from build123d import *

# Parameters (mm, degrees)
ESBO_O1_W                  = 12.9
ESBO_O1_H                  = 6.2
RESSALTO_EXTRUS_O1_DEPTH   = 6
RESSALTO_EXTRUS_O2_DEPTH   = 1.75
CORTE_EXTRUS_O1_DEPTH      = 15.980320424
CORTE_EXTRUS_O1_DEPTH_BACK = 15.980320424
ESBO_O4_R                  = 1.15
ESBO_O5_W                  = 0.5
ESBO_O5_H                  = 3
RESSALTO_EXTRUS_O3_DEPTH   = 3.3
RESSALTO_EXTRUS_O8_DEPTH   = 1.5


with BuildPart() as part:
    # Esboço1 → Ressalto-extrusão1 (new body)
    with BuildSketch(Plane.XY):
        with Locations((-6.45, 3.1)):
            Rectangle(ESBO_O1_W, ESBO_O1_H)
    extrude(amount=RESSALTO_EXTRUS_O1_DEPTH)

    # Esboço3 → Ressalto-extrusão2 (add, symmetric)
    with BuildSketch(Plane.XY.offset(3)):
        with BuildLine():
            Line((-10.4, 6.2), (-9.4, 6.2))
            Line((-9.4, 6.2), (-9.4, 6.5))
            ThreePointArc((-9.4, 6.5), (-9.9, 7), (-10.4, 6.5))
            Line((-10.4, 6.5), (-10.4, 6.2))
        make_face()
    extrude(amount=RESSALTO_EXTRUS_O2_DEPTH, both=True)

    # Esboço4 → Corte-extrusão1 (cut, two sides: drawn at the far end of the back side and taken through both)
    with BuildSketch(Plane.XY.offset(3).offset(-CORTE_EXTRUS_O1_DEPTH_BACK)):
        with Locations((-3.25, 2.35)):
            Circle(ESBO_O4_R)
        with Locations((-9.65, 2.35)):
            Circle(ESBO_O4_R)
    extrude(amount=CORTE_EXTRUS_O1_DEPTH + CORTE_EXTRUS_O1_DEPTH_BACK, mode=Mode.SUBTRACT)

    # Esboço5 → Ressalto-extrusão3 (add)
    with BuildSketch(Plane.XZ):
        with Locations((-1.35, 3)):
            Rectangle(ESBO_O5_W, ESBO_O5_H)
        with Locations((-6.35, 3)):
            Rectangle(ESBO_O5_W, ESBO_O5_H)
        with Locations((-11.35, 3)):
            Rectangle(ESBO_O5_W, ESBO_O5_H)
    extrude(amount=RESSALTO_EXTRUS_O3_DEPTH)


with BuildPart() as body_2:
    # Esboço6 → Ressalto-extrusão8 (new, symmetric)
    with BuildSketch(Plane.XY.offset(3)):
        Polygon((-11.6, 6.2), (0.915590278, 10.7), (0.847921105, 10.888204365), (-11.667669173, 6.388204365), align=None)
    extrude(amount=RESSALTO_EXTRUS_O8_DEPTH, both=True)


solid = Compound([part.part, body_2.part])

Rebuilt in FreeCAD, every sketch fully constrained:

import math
import FreeCAD as App
import Part
import Sketcher

V = App.Vector
Q = App.Units.Quantity


def add_polygon(sketch, points):
    """Adds a closed chain of lines whose ends are joined by coincident constraints."""
    first, n = sketch.GeometryCount, len(points)
    for a, b in zip(points, points[1:] + points[:1]):
        sketch.addGeometry(Part.LineSegment(App.Vector(*a, 0), App.Vector(*b, 0)), False)
    for i in range(n):
        sketch.addConstraint(Sketcher.Constraint("Coincident", first + i, 2, first + (i + 1) % n, 1))

doc = App.newDocument("Part")
params = doc.addObject("Spreadsheet::Sheet", "Params")
for row, (alias, value) in enumerate([
    ("sketch1_width", "12.9 mm"),
    ("sketch1_height", "6.2 mm"),
    ("pad1_length", "6 mm"),
    ("sketch2_radius", "0.5 mm"),
    ("sketch2_height", "0.3 mm"),
    ("pad2_length", "3.5 mm"),
    ("sketch3_diameter", "2.3 mm"),
    ("sketch4_height", "3 mm"),
    ("sketch4_width", "0.5 mm"),
    ("pad3_length", "3.3 mm"),
    ("sketch5_length", "13.3 mm"),
    ("sketch5_length2", "0.2 mm"),
    ("pad4_length", "3 mm"),
], start=1):
    params.set(f"A{row}", alias)
    params.set(f"B{row}", "=" + value)
    params.setAlias(f"B{row}", alias)

body = doc.addObject("PartDesign::Body", "Body")

sketch1 = body.newObject("Sketcher::SketchObject", "Sketch")
sketch1.AttachmentSupport = (doc.getObject("XY_Plane"), [""])
sketch1.MapMode = "FlatFace"
add_polygon(sketch1, [(-12.9, 6.2), (-12.9, 0), (0, 0), (0, 6.2)])
sketch1.addConstraint(Sketcher.Constraint("Vertical", 0))
sketch1.addConstraint(Sketcher.Constraint("Horizontal", 1))
sketch1.addConstraint(Sketcher.Constraint("Vertical", 2))
sketch1.addConstraint(Sketcher.Constraint("Horizontal", 3))
sketch1.addConstraint(Sketcher.Constraint("Coincident", 1, 2, -1, 1))
sketch1.addConstraint(Sketcher.Constraint("DistanceX", 1, 1, 1, 2, Q("12.9 mm")))
sketch1.addConstraint(Sketcher.Constraint("DistanceY", 0, 2, 0, 1, Q("6.2 mm")))
sketch1.setExpression("Constraints[9]", "Params.sketch1_width")
sketch1.setExpression("Constraints[10]", "Params.sketch1_height")
pad1 = body.newObject("PartDesign::Pad", "Pad")
pad1.Profile = sketch1
pad1.setExpression("Length", "Params.pad1_length")

sketch2 = body.newObject("Sketcher::SketchObject", "Sketch001")
sketch2.AttachmentSupport = (doc.getObject("XY_Plane"), [""])
sketch2.MapMode = "FlatFace"
sketch2.AttachmentOffset = App.Placement(V(0, 0, 3), App.Rotation())
sketch2.addGeometry(Part.LineSegment(V(-10.4, 6.2, 0), V(-9.4, 6.2, 0)), False)
sketch2.addGeometry(Part.LineSegment(V(-9.4, 6.2, 0), V(-9.4, 6.5, 0)), False)
sketch2.addGeometry(Part.ArcOfCircle(Part.Circle(V(-9.9, 6.5, 0), V(0, 0, 1), 0.5), math.radians(0), math.radians(180)), False)
sketch2.addGeometry(Part.LineSegment(V(-10.4, 6.5, 0), V(-10.4, 6.2, 0)), False)
sketch2.addConstraint(Sketcher.Constraint("Coincident", 0, 2, 1, 1))
sketch2.addConstraint(Sketcher.Constraint("Tangent", 1, 2, 2, 1))
sketch2.addConstraint(Sketcher.Constraint("Tangent", 2, 2, 3, 1))
sketch2.addConstraint(Sketcher.Constraint("Coincident", 3, 2, 0, 1))
sketch2.addConstraint(Sketcher.Constraint("Horizontal", 0))
sketch2.addConstraint(Sketcher.Constraint("Vertical", 1))
sketch2.addConstraint(Sketcher.Constraint("Vertical", 3))
sketch2.addConstraint(Sketcher.Constraint("Radius", 2, Q("0.5 mm")))
sketch2.addConstraint(Sketcher.Constraint("DistanceY", 1, 1, 1, 2, Q("0.3 mm")))
sketch2.addConstraint(Sketcher.Constraint("DistanceX", 2, 3, -1, 1, Q("9.9 mm")))
sketch2.addConstraint(Sketcher.Constraint("DistanceY", -1, 1, 2, 3, Q("6.5 mm")))
sketch2.setExpression("Constraints[7]", "Params.sketch2_radius")
sketch2.setExpression("Constraints[8]", "Params.sketch2_height")
pad2 = body.newObject("PartDesign::Pad", "Pad001")
pad2.Profile = sketch2
pad2.setExpression("Length", "Params.pad2_length")
pad2.Midplane = True

sketch3 = body.newObject("Sketcher::SketchObject", "Sketch002")
sketch3.AttachmentSupport = (doc.getObject("XY_Plane"), [""])
sketch3.MapMode = "FlatFace"
sketch3.AttachmentOffset = App.Placement(V(0, 0, 3), App.Rotation())
sketch3.addGeometry(Part.Circle(V(-3.25, 2.35, 0), V(0, 0, 1), 1.15), False)
sketch3.addGeometry(Part.Circle(V(-9.65, 2.35, 0), V(0, 0, 1), 1.15), False)
sketch3.addConstraint(Sketcher.Constraint("Equal", 0, 1))
sketch3.addConstraint(Sketcher.Constraint("Horizontal", 0, 3, 1, 3))
sketch3.addConstraint(Sketcher.Constraint("Diameter", 0, Q("2.3 mm")))
sketch3.addConstraint(Sketcher.Constraint("DistanceX", 1, 3, 0, 3, Q("6.4 mm")))
sketch3.addConstraint(Sketcher.Constraint("DistanceX", 0, 3, -1, 1, Q("3.25 mm")))
sketch3.addConstraint(Sketcher.Constraint("DistanceY", -1, 1, 0, 3, Q("2.35 mm")))
sketch3.setExpression("Constraints[2]", "Params.sketch3_diameter")
pocket1 = body.newObject("PartDesign::Pocket", "Pocket")
pocket1.Profile = sketch3
pocket1.Type = "ThroughAll"
pocket1.Midplane = True

sketch4 = body.newObject("Sketcher::SketchObject", "Sketch003")
sketch4.AttachmentSupport = (doc.getObject("XZ_Plane"), [""])
sketch4.MapMode = "FlatFace"
add_polygon(sketch4, [(-1.6, 4.5), (-1.6, 1.5), (-1.1, 1.5), (-1.1, 4.5)])
add_polygon(sketch4, [(-6.6, 4.5), (-6.6, 1.5), (-6.1, 1.5), (-6.1, 4.5)])
add_polygon(sketch4, [(-11.6, 4.5), (-11.6, 1.5), (-11.1, 1.5), (-11.1, 4.5)])
sketch4.addConstraint(Sketcher.Constraint("Vertical", 0))
sketch4.addConstraint(Sketcher.Constraint("Horizontal", 1))
sketch4.addConstraint(Sketcher.Constraint("Vertical", 2))
sketch4.addConstraint(Sketcher.Constraint("Horizontal", 3))
sketch4.addConstraint(Sketcher.Constraint("Vertical", 4))
sketch4.addConstraint(Sketcher.Constraint("Horizontal", 5))
sketch4.addConstraint(Sketcher.Constraint("Vertical", 6))
sketch4.addConstraint(Sketcher.Constraint("Horizontal", 7))
sketch4.addConstraint(Sketcher.Constraint("Vertical", 8))
sketch4.addConstraint(Sketcher.Constraint("Horizontal", 9))
sketch4.addConstraint(Sketcher.Constraint("Vertical", 10))
sketch4.addConstraint(Sketcher.Constraint("Horizontal", 11))
sketch4.addConstraint(Sketcher.Constraint("Horizontal", 1, 2, 4, 2))
sketch4.addConstraint(Sketcher.Constraint("Horizontal", 3, 2, 6, 2))
sketch4.addConstraint(Sketcher.Constraint("Horizontal", 5, 2, 8, 2))
sketch4.addConstraint(Sketcher.Constraint("Horizontal", 7, 2, 10, 2))
sketch4.addConstraint(Sketcher.Constraint("Equal", 3, 5))
sketch4.addConstraint(Sketcher.Constraint("Equal", 7, 9))
sketch4.addConstraint(Sketcher.Constraint("DistanceY", 0, 2, 0, 1, Q("3 mm")))
sketch4.addConstraint(Sketcher.Constraint("DistanceX", 1, 1, 1, 2, Q("0.5 mm")))
sketch4.addConstraint(Sketcher.Constraint("DistanceX", 4, 2, 0, 2, Q("5 mm")))
sketch4.addConstraint(Sketcher.Constraint("DistanceX", 8, 2, 4, 2, Q("5 mm")))
sketch4.addConstraint(Sketcher.Constraint("DistanceX", 0, 2, -1, 1, Q("1.6 mm")))
sketch4.addConstraint(Sketcher.Constraint("DistanceY", -1, 1, 0, 2, Q("1.5 mm")))
sketch4.setExpression("Constraints[30]", "Params.sketch4_height")
sketch4.setExpression("Constraints[31]", "Params.sketch4_width")
pad3 = body.newObject("PartDesign::Pad", "Pad002")
pad3.Profile = sketch4
pad3.setExpression("Length", "Params.pad3_length")
body2 = doc.addObject("PartDesign::Body", "Body001")

sketch5 = body2.newObject("Sketcher::SketchObject", "Sketch004")
sketch5.AttachmentSupport = (doc.getObject("XY_Plane001"), [""])
sketch5.MapMode = "FlatFace"
sketch5.AttachmentOffset = App.Placement(V(0, 0, 3), App.Rotation())
add_polygon(sketch5, [(-11.6, 6.2), (0.91559, 10.7), (0.847921, 10.888204), (-11.667669, 6.388204)])
sketch5.addConstraint(Sketcher.Constraint("Perpendicular", 0, 1))
sketch5.addConstraint(Sketcher.Constraint("Perpendicular", 1, 2))
sketch5.addConstraint(Sketcher.Constraint("Perpendicular", 2, 3))
sketch5.addConstraint(Sketcher.Constraint("Distance", 0, Q("13.3 mm")))
sketch5.addConstraint(Sketcher.Constraint("Distance", 1, Q("0.2 mm")))
sketch5.addConstraint(Sketcher.Constraint("DistanceY", -1, 1, 0, 2, Q("10.7 mm")))
sketch5.addConstraint(Sketcher.Constraint("DistanceX", 3, 2, -1, 1, Q("11.6 mm")))
sketch5.addConstraint(Sketcher.Constraint("DistanceY", -1, 1, 3, 2, Q("6.2 mm")))
sketch5.setExpression("Constraints[7]", "Params.sketch5_length")
sketch5.setExpression("Constraints[8]", "Params.sketch5_length2")
pad4 = body2.newObject("PartDesign::Pad", "Pad003")
pad4.Profile = sketch5
pad4.setExpression("Length", "Params.pad4_length")
pad4.Midplane = True

doc.recompute()
